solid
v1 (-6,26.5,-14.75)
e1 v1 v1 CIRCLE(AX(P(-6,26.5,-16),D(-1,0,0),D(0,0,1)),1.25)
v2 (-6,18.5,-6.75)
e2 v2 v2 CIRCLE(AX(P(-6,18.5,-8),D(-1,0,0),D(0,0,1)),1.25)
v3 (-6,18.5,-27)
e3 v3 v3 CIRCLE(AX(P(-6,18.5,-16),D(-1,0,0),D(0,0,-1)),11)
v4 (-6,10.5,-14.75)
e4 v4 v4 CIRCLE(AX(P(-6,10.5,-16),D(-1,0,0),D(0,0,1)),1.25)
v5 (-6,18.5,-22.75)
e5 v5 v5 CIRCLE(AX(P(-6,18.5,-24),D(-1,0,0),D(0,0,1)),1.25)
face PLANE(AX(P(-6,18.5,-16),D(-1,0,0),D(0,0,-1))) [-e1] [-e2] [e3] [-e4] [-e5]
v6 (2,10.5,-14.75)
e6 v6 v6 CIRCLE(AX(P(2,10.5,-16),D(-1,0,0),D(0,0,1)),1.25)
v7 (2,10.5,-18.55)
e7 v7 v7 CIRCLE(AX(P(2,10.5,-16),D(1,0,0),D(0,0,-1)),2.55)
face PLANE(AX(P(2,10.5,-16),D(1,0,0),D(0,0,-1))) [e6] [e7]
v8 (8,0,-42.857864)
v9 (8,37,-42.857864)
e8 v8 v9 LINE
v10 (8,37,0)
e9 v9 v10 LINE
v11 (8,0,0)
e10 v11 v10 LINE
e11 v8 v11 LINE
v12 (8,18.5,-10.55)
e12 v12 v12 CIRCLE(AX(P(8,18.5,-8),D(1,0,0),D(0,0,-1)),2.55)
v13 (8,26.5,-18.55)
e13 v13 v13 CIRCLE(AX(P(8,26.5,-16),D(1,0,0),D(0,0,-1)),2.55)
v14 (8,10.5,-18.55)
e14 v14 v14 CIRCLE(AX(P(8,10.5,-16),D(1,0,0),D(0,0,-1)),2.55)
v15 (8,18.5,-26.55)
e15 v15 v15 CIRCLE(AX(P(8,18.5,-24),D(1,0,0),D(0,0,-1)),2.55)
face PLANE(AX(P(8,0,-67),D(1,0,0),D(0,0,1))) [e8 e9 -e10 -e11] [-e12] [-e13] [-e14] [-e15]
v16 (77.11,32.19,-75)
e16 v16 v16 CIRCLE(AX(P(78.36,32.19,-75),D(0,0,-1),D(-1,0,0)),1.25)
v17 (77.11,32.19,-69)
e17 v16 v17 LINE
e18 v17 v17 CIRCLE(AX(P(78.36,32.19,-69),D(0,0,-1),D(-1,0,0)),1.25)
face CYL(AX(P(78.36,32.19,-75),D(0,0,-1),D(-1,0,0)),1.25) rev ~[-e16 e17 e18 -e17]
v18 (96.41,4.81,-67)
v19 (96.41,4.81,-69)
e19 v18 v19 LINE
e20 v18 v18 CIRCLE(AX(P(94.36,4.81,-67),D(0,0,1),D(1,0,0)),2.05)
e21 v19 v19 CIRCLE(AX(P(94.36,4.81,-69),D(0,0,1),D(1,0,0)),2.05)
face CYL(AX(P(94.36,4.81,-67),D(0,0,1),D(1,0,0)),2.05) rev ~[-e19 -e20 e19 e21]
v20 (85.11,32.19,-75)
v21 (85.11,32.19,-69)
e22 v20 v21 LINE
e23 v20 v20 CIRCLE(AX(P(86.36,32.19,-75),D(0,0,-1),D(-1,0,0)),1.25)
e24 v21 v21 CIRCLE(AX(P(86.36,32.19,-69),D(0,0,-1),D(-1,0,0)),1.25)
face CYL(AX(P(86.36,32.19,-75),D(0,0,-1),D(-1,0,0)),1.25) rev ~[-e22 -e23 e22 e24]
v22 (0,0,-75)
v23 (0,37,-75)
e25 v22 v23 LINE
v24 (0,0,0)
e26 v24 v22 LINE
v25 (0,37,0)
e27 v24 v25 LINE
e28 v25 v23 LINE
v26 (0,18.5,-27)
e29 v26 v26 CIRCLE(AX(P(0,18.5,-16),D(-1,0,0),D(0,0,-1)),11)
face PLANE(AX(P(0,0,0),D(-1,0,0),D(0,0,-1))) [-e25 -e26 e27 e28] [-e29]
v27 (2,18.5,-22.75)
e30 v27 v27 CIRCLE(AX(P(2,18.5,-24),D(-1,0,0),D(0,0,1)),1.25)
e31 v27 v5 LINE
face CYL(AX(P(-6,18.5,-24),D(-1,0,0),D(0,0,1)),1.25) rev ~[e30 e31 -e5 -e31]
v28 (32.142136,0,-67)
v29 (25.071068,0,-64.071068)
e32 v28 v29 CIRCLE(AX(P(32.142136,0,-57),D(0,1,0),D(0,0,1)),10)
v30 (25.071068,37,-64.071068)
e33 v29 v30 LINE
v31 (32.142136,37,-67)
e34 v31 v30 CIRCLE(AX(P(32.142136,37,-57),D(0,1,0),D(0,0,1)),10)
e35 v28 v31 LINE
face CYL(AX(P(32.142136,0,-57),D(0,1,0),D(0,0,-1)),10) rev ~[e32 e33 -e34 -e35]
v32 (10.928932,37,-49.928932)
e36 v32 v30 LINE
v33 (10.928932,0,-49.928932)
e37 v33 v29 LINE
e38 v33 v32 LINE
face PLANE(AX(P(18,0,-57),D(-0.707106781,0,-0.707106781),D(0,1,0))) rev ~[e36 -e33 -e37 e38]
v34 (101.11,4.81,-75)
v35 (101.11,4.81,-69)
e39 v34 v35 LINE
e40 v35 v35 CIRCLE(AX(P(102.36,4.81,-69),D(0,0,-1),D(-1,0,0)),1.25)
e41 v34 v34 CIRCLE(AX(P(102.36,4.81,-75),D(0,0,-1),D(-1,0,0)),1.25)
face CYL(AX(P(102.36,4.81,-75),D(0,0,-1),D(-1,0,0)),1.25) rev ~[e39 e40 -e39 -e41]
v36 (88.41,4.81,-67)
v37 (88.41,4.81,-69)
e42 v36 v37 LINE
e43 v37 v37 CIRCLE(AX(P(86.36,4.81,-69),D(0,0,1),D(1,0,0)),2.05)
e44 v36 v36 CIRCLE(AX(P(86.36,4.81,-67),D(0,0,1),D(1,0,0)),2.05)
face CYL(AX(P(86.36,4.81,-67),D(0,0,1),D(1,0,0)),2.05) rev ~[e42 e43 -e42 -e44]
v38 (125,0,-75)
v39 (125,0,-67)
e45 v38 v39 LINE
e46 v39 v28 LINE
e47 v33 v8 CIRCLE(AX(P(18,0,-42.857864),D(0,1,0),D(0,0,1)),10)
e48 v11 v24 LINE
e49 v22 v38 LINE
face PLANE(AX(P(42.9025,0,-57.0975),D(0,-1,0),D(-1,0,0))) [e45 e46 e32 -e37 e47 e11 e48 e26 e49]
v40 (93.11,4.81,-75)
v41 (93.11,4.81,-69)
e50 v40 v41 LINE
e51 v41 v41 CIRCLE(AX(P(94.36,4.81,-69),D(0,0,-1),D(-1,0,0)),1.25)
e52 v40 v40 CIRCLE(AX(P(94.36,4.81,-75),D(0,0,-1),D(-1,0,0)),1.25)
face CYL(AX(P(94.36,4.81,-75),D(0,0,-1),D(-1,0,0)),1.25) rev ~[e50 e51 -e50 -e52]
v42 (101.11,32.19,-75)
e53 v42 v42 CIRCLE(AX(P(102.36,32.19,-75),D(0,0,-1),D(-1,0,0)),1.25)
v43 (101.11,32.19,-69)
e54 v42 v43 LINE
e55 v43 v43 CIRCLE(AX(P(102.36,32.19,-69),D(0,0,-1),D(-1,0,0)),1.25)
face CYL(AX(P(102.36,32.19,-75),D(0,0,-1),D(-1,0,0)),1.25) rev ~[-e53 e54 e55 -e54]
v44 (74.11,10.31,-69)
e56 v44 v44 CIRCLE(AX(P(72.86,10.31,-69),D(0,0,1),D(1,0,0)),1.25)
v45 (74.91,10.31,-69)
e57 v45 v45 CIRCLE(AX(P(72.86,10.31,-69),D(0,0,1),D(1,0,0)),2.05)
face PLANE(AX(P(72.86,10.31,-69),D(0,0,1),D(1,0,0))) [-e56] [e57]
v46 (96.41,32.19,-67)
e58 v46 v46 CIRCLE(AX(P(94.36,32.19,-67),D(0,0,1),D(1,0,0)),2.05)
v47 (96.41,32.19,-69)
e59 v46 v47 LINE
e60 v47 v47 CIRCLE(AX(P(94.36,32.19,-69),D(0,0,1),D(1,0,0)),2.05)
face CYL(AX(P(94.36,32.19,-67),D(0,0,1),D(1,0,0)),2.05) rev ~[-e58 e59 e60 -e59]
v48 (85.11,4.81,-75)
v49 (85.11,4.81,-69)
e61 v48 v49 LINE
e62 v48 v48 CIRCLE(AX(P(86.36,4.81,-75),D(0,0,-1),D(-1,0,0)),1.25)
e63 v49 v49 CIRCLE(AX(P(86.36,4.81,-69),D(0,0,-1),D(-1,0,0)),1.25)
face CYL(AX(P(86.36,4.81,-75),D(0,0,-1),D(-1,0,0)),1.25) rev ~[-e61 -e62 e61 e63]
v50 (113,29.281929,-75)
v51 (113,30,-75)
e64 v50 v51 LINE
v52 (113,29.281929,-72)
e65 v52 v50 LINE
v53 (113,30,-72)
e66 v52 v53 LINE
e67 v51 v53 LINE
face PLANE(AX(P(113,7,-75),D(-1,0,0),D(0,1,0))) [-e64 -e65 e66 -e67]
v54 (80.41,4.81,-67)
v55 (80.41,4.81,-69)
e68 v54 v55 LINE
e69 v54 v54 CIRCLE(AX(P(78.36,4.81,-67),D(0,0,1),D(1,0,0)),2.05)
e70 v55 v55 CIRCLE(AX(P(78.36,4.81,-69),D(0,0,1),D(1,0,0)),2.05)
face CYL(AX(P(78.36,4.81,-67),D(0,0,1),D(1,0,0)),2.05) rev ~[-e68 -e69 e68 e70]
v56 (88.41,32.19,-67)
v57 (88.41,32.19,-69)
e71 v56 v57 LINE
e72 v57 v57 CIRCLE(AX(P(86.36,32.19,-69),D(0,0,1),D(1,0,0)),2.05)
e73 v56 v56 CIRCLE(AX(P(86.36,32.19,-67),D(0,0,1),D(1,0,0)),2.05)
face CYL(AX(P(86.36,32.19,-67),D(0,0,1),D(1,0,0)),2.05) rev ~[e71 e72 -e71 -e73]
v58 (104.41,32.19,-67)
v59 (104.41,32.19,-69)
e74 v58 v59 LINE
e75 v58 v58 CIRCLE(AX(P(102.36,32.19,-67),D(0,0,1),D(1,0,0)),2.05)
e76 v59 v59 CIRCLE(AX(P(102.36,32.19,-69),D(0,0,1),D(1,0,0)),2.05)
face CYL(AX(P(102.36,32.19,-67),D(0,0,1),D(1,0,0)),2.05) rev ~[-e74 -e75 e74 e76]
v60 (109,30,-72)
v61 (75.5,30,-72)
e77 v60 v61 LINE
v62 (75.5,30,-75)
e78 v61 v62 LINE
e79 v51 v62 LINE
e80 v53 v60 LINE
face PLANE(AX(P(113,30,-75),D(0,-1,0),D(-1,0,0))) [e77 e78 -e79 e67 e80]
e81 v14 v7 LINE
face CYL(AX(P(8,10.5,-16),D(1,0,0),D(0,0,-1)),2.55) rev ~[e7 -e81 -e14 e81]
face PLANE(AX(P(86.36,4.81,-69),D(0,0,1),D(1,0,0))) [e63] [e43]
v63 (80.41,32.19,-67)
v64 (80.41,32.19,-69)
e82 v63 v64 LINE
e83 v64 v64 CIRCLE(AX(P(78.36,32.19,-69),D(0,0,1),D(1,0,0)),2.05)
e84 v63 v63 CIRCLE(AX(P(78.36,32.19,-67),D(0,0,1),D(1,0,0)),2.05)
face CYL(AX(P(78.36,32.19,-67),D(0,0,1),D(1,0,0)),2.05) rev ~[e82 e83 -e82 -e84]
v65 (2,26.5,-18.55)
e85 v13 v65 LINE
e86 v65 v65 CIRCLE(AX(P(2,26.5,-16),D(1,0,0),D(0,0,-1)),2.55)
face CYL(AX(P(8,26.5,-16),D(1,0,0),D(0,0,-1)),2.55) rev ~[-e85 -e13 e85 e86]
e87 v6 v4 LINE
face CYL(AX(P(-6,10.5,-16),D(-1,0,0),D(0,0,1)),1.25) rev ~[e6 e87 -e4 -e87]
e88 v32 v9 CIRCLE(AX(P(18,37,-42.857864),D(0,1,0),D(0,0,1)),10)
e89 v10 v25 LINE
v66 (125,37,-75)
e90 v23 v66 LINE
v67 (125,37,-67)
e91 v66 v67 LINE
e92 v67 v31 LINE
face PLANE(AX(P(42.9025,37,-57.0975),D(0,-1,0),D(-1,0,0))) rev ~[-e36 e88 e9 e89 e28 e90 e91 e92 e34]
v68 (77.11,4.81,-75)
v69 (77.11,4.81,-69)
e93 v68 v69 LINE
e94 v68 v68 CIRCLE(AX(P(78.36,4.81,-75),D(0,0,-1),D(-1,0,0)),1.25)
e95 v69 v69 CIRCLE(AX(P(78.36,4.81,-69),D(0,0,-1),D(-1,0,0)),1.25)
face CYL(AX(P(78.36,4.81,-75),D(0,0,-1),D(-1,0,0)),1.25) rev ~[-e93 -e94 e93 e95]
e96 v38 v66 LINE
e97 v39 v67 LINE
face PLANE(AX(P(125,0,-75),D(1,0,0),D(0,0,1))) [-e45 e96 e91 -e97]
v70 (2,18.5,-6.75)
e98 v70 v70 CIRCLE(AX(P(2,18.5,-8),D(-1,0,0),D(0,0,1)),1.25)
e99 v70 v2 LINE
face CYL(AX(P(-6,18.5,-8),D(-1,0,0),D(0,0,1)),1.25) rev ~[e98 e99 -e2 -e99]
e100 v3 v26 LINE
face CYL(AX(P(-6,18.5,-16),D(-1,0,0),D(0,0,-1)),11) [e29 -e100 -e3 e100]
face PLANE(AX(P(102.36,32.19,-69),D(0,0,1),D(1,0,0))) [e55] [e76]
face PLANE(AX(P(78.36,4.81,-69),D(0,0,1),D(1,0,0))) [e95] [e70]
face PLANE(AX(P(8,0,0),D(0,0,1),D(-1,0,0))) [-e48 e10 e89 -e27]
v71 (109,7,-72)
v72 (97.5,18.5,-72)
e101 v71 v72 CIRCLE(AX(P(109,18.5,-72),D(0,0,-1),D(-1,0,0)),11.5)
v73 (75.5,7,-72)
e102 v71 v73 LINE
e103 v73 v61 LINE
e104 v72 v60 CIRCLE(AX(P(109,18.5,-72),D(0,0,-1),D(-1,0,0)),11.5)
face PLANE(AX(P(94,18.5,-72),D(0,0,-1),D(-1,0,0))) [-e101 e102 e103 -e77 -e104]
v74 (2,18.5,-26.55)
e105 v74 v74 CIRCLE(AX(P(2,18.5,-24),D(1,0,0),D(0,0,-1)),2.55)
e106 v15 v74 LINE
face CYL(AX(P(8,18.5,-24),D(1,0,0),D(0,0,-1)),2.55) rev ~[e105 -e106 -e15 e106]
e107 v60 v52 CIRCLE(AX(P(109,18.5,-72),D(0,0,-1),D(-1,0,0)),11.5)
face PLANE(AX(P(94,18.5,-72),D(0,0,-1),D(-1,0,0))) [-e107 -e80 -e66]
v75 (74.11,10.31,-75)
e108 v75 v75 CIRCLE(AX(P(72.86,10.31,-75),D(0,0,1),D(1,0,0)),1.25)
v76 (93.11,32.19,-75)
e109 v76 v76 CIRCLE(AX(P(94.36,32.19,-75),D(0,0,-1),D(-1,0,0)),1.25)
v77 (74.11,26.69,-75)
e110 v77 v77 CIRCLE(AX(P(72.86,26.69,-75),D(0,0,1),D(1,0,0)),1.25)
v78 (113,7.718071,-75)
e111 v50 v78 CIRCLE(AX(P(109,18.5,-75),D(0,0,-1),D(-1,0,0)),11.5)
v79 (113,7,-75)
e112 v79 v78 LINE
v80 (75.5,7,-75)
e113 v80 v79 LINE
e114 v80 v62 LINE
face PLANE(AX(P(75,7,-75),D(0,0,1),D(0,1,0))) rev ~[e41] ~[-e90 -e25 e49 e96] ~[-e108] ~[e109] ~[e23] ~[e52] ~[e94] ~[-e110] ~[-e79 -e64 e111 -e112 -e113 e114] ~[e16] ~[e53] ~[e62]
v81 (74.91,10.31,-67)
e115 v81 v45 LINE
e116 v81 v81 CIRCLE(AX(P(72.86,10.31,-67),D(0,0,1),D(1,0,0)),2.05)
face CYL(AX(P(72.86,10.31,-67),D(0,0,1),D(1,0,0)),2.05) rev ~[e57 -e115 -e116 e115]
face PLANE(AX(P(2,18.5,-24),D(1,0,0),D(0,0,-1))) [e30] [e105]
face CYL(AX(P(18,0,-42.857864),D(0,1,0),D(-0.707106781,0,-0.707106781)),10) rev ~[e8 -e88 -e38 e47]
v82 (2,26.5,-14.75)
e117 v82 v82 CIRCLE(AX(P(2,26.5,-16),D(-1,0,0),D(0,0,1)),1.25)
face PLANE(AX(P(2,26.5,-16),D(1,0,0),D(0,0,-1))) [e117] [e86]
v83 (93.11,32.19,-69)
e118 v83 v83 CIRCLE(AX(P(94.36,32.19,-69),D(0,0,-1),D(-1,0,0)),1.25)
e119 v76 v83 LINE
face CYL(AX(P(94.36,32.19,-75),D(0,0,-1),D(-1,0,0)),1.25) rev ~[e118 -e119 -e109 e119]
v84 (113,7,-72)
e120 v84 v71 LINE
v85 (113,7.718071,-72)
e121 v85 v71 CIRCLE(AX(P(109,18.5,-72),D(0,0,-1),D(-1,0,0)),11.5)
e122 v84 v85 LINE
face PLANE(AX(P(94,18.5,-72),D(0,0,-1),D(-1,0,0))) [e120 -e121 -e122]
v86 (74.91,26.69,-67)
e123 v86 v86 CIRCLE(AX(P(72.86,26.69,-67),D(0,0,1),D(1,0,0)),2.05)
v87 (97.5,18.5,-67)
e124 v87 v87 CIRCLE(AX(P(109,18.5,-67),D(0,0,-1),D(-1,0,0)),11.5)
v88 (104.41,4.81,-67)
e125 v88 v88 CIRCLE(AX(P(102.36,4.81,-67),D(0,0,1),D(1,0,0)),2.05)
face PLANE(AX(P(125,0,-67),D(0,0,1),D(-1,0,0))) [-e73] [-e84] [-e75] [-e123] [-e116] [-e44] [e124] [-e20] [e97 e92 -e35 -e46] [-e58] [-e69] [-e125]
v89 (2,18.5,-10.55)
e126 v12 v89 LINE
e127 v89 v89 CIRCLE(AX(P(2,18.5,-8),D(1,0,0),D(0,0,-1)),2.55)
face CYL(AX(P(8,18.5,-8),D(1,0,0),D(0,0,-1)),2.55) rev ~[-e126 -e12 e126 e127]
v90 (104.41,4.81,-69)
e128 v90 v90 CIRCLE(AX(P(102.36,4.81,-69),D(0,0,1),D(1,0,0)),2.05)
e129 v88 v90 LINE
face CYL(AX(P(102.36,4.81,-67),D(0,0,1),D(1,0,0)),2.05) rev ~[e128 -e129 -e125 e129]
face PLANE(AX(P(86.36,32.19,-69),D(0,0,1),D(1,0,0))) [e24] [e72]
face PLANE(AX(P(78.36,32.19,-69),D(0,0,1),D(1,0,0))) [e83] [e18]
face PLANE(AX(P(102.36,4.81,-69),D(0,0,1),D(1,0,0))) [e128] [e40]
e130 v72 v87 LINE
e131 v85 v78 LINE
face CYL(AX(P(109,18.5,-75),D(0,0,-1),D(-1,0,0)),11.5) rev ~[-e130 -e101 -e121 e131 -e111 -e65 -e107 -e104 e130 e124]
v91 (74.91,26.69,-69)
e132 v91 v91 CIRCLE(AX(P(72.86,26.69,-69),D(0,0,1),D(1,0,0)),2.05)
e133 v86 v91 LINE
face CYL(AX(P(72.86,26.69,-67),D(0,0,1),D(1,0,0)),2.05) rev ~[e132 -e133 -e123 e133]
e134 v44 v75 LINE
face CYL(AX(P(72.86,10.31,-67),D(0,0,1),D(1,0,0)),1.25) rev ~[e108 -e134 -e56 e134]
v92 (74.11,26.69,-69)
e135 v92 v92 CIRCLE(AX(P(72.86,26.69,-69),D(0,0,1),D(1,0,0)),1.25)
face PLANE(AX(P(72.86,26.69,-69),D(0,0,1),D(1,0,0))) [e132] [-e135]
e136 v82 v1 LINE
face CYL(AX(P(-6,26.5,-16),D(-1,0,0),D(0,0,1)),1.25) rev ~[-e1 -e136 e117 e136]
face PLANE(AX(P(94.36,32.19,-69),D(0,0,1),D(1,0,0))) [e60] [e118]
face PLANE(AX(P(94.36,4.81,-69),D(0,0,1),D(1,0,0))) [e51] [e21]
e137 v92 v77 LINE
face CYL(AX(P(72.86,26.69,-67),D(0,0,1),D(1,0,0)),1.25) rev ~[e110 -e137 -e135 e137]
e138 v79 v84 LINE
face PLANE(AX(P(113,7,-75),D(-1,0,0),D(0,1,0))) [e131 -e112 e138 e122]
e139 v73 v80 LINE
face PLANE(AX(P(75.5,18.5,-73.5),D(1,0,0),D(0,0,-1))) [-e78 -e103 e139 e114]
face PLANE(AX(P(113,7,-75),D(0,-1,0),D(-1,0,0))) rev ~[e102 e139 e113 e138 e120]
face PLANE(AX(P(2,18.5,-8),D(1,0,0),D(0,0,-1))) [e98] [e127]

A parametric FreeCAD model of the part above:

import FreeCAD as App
import Part
import Sketcher
Q = App.Units.Quantity


def edges_at(feature, points):
    """Names of the edges that pass closest to the given points."""
    edges = feature.Shape.Edges
    near = lambda p: min(range(len(edges)), key=lambda i: edges[i].distToShape(Part.Vertex(*p))[0])
    return sorted({f"Edge{near(p) + 1}" for p in points})

doc = App.newDocument("Part")
body = doc.addObject("PartDesign::Body", "Body")

# Sketch on XZ plane
sketch1 = body.newObject("Sketcher::SketchObject", "Sketch")
sketch1.AttachmentSupport = (doc.getObject("XZ_Plane"), [""])
sketch1.MapMode = "FlatFace"
sketch1.addGeometry(Part.LineSegment(App.Vector(0, -75, 0), App.Vector(0, 0, 0)), False)
sketch1.addGeometry(Part.LineSegment(App.Vector(0, 0, 0), App.Vector(8, 0, 0)), False)
sketch1.addGeometry(Part.LineSegment(App.Vector(8, 0, 0), App.Vector(8, -67, 0)), False)
sketch1.addGeometry(Part.LineSegment(App.Vector(8, -67, 0), App.Vector(125, -67, 0)), False)
sketch1.addGeometry(Part.LineSegment(App.Vector(125, -67, 0), App.Vector(125, -75, 0)), False)
sketch1.addGeometry(Part.LineSegment(App.Vector(125, -75, 0), App.Vector(0, -75, 0)), False)
sketch1.addConstraint(Sketcher.Constraint("Coincident", 0, 2, 1, 1))
sketch1.addConstraint(Sketcher.Constraint("Coincident", 1, 2, 2, 1))
sketch1.addConstraint(Sketcher.Constraint("Coincident", 2, 2, 3, 1))
sketch1.addConstraint(Sketcher.Constraint("Coincident", 3, 2, 4, 1))
sketch1.addConstraint(Sketcher.Constraint("Coincident", 4, 2, 5, 1))
sketch1.addConstraint(Sketcher.Constraint("Coincident", 5, 2, 0, 1))
sketch1.addConstraint(Sketcher.Constraint("Vertical", 0))
sketch1.addConstraint(Sketcher.Constraint("Horizontal", 1))
sketch1.addConstraint(Sketcher.Constraint("Vertical", 2))
sketch1.addConstraint(Sketcher.Constraint("Horizontal", 3))
sketch1.addConstraint(Sketcher.Constraint("Vertical", 4))
sketch1.addConstraint(Sketcher.Constraint("Horizontal", 5))
sketch1.addConstraint(Sketcher.Constraint("Coincident", 0, 2, -1, 1))
sketch1.addConstraint(Sketcher.Constraint("Equal", 1, 4))
sketch1.addConstraint(Sketcher.Constraint("DistanceX", 1, 1, 1, 2, Q("8 mm")))
sketch1.addConstraint(Sketcher.Constraint("DistanceX", 3, 1, 3, 2, Q("117 mm")))
sketch1.addConstraint(Sketcher.Constraint("DistanceY", 0, 1, 0, 2, Q("75 mm")))
pad1 = body.newObject("PartDesign::Pad", "Pad")
pad1.Profile = sketch1
pad1.Length = 37
pad1.Reversed = True

# Sketch on XY plane
sketch2 = body.newObject("Sketcher::SketchObject", "Sketch001")
sketch2.AttachmentSupport = (doc.getObject("XY_Plane"), [""])
sketch2.MapMode = "FlatFace"
sketch2.AttachmentOffset = App.Placement(App.Vector(0, 0, -75), App.Rotation())
sketch2.addGeometry(Part.Circle(App.Vector(109, 18.5, 0), App.Vector(0, 0, 1), 11.5), False)
sketch2.addConstraint(Sketcher.Constraint("Diameter", 0, Q("23 mm")))
sketch2.addConstraint(Sketcher.Constraint("DistanceX", -1, 1, 0, 3, Q("109 mm")))
sketch2.addConstraint(Sketcher.Constraint("DistanceY", -1, 1, 0, 3, Q("18.5 mm")))
pocket1 = body.newObject("PartDesign::Pocket", "Pocket")
pocket1.Profile = sketch2
pocket1.Type = "UpToFirst"
pocket1.Reversed = True

# Sketch on XY plane
sketch3 = body.newObject("Sketcher::SketchObject", "Sketch002")
sketch3.AttachmentSupport = (doc.getObject("XY_Plane"), [""])
sketch3.MapMode = "FlatFace"
sketch3.AttachmentOffset = App.Placement(App.Vector(0, 0, -75), App.Rotation())
sketch3.addGeometry(Part.Circle(App.Vector(102.36, 32.19, 0), App.Vector(0, 0, 1), 1.25), False)
sketch3.addConstraint(Sketcher.Constraint("Diameter", 0, Q("2.5 mm")))
sketch3.addConstraint(Sketcher.Constraint("DistanceX", -1, 1, 0, 3, Q("102.36 mm")))
sketch3.addConstraint(Sketcher.Constraint("DistanceY", -1, 1, 0, 3, Q("32.19 mm")))
pocket2 = body.newObject("PartDesign::Pocket", "Pocket001")
pocket2.Profile = sketch3
pocket2.Type = "UpToFirst"
pocket2.Reversed = True

# Sketch on XY plane
sketch4 = body.newObject("Sketcher::SketchObject", "Sketch003")
sketch4.AttachmentSupport = (doc.getObject("XY_Plane"), [""])
sketch4.MapMode = "FlatFace"
sketch4.AttachmentOffset = App.Placement(App.Vector(0, 0, -75), App.Rotation())
sketch4.addGeometry(Part.Circle(App.Vector(94.36, 32.19, 0), App.Vector(0, 0, 1), 1.25), False)
sketch4.addConstraint(Sketcher.Constraint("Diameter", 0, Q("2.5 mm")))
sketch4.addConstraint(Sketcher.Constraint("DistanceX", -1, 1, 0, 3, Q("94.36 mm")))
sketch4.addConstraint(Sketcher.Constraint("DistanceY", -1, 1, 0, 3, Q("32.19 mm")))
pocket3 = body.newObject("PartDesign::Pocket", "Pocket002")
pocket3.Profile = sketch4
pocket3.Type = "UpToFirst"
pocket3.Reversed = True

# Sketch on XY plane
sketch5 = body.newObject("Sketcher::SketchObject", "Sketch004")
sketch5.AttachmentSupport = (doc.getObject("XY_Plane"), [""])
sketch5.MapMode = "FlatFace"
sketch5.AttachmentOffset = App.Placement(App.Vector(0, 0, -75), App.Rotation())
sketch5.addGeometry(Part.Circle(App.Vector(86.36, 32.19, 0), App.Vector(0, 0, 1), 1.25), False)
sketch5.addConstraint(Sketcher.Constraint("Diameter", 0, Q("2.5 mm")))
sketch5.addConstraint(Sketcher.Constraint("DistanceX", -1, 1, 0, 3, Q("86.36 mm")))
sketch5.addConstraint(Sketcher.Constraint("DistanceY", -1, 1, 0, 3, Q("32.19 mm")))
pocket4 = body.newObject("PartDesign::Pocket", "Pocket003")
pocket4.Profile = sketch5
pocket4.Type = "UpToFirst"
pocket4.Reversed = True

# Sketch on XY plane
sketch6 = body.newObject("Sketcher::SketchObject", "Sketch005")
sketch6.AttachmentSupport = (doc.getObject("XY_Plane"), [""])
sketch6.MapMode = "FlatFace"
sketch6.AttachmentOffset = App.Placement(App.Vector(0, 0, -75), App.Rotation())
sketch6.addGeometry(Part.Circle(App.Vector(78.36, 32.19, 0), App.Vector(0, 0, 1), 1.25), False)
sketch6.addConstraint(Sketcher.Constraint("Diameter", 0, Q("2.5 mm")))
sketch6.addConstraint(Sketcher.Constraint("DistanceX", -1, 1, 0, 3, Q("78.36 mm")))
sketch6.addConstraint(Sketcher.Constraint("DistanceY", -1, 1, 0, 3, Q("32.19 mm")))
pocket5 = body.newObject("PartDesign::Pocket", "Pocket004")
pocket5.Profile = sketch6
pocket5.Type = "UpToFirst"
pocket5.Reversed = True

# Sketch on XY plane
sketch7 = body.newObject("Sketcher::SketchObject", "Sketch006")
sketch7.AttachmentSupport = (doc.getObject("XY_Plane"), [""])
sketch7.MapMode = "FlatFace"
sketch7.AttachmentOffset = App.Placement(App.Vector(0, 0, -75), App.Rotation())
sketch7.addGeometry(Part.Circle(App.Vector(78.36, 4.81, 0), App.Vector(0, 0, 1), 1.25), False)
sketch7.addConstraint(Sketcher.Constraint("Diameter", 0, Q("2.5 mm")))
sketch7.addConstraint(Sketcher.Constraint("DistanceX", -1, 1, 0, 3, Q("78.36 mm")))
sketch7.addConstraint(Sketcher.Constraint("DistanceY", -1, 1, 0, 3, Q("4.81 mm")))
pocket6 = body.newObject("PartDesign::Pocket", "Pocket005")
pocket6.Profile = sketch7
pocket6.Type = "UpToFirst"
pocket6.Reversed = True

# Sketch on XY plane
sketch8 = body.newObject("Sketcher::SketchObject", "Sketch007")
sketch8.AttachmentSupport = (doc.getObject("XY_Plane"), [""])
sketch8.MapMode = "FlatFace"
sketch8.AttachmentOffset = App.Placement(App.Vector(0, 0, -75), App.Rotation())
sketch8.addGeometry(Part.Circle(App.Vector(86.36, 4.81, 0), App.Vector(0, 0, 1), 1.25), False)
sketch8.addConstraint(Sketcher.Constraint("Diameter", 0, Q("2.5 mm")))
sketch8.addConstraint(Sketcher.Constraint("DistanceX", -1, 1, 0, 3, Q("86.36 mm")))
sketch8.addConstraint(Sketcher.Constraint("DistanceY", -1, 1, 0, 3, Q("4.81 mm")))
pocket7 = body.newObject("PartDesign::Pocket", "Pocket006")
pocket7.Profile = sketch8
pocket7.Type = "UpToFirst"
pocket7.Reversed = True

# Sketch on XY plane
sketch9 = body.newObject("Sketcher::SketchObject", "Sketch008")
sketch9.AttachmentSupport = (doc.getObject("XY_Plane"), [""])
sketch9.MapMode = "FlatFace"
sketch9.AttachmentOffset = App.Placement(App.Vector(0, 0, -75), App.Rotation())
sketch9.addGeometry(Part.Circle(App.Vector(94.36, 4.81, 0), App.Vector(0, 0, 1), 1.25), False)
sketch9.addConstraint(Sketcher.Constraint("Diameter", 0, Q("2.5 mm")))
sketch9.addConstraint(Sketcher.Constraint("DistanceX", -1, 1, 0, 3, Q("94.36 mm")))
sketch9.addConstraint(Sketcher.Constraint("DistanceY", -1, 1, 0, 3, Q("4.81 mm")))
pocket8 = body.newObject("PartDesign::Pocket", "Pocket007")
pocket8.Profile = sketch9
pocket8.Type = "UpToFirst"
pocket8.Reversed = True

# Sketch on XY plane
sketch10 = body.newObject("Sketcher::SketchObject", "Sketch009")
sketch10.AttachmentSupport = (doc.getObject("XY_Plane"), [""])
sketch10.MapMode = "FlatFace"
sketch10.AttachmentOffset = App.Placement(App.Vector(0, 0, -75), App.Rotation())
sketch10.addGeometry(Part.Circle(App.Vector(102.36, 4.81, 0), App.Vector(0, 0, 1), 1.25), False)
sketch10.addConstraint(Sketcher.Constraint("Diameter", 0, Q("2.5 mm")))
sketch10.addConstraint(Sketcher.Constraint("DistanceX", -1, 1, 0, 3, Q("102.36 mm")))
sketch10.addConstraint(Sketcher.Constraint("DistanceY", -1, 1, 0, 3, Q("4.81 mm")))
pocket9 = body.newObject("PartDesign::Pocket", "Pocket008")
pocket9.Profile = sketch10
pocket9.Type = "UpToFirst"
pocket9.Reversed = True

# Sketch on YZ plane
sketch11 = body.newObject("Sketcher::SketchObject", "Sketch010")
sketch11.AttachmentSupport = (doc.getObject("YZ_Plane"), [""])
sketch11.MapMode = "FlatFace"
sketch11.addGeometry(Part.Circle(App.Vector(10.5, -16, 0), App.Vector(0, 0, 1), 1.25), False)
sketch11.addConstraint(Sketcher.Constraint("Diameter", 0, Q("2.5 mm")))
sketch11.addConstraint(Sketcher.Constraint("DistanceY", 0, 3, -1, 1, Q("16 mm")))
sketch11.addConstraint(Sketcher.Constraint("DistanceX", -1, 1, 0, 3, Q("10.5 mm")))
pocket10 = body.newObject("PartDesign::Pocket", "Pocket009")
pocket10.Profile = sketch11
pocket10.Type = "UpToFirst"
pocket10.Reversed = True

# Sketch on YZ plane
sketch12 = body.newObject("Sketcher::SketchObject", "Sketch011")
sketch12.AttachmentSupport = (doc.getObject("YZ_Plane"), [""])
sketch12.MapMode = "FlatFace"
sketch12.addGeometry(Part.Circle(App.Vector(18.5, -24, 0), App.Vector(0, 0, 1), 1.25), False)
sketch12.addConstraint(Sketcher.Constraint("Diameter", 0, Q("2.5 mm")))
sketch12.addConstraint(Sketcher.Constraint("DistanceY", 0, 3, -1, 1, Q("24 mm")))
sketch12.addConstraint(Sketcher.Constraint("DistanceX", -1, 1, 0, 3, Q("18.5 mm")))
pocket11 = body.newObject("PartDesign::Pocket", "Pocket010")
pocket11.Profile = sketch12
pocket11.Type = "UpToFirst"
pocket11.Reversed = True

# Sketch on YZ plane
sketch13 = body.newObject("Sketcher::SketchObject", "Sketch012")
sketch13.AttachmentSupport = (doc.getObject("YZ_Plane"), [""])
sketch13.MapMode = "FlatFace"
sketch13.addGeometry(Part.Circle(App.Vector(26.5, -16, 0), App.Vector(0, 0, 1), 1.25), False)
sketch13.addConstraint(Sketcher.Constraint("Diameter", 0, Q("2.5 mm")))
sketch13.addConstraint(Sketcher.Constraint("DistanceY", 0, 3, -1, 1, Q("16 mm")))
sketch13.addConstraint(Sketcher.Constraint("DistanceX", -1, 1, 0, 3, Q("26.5 mm")))
pocket12 = body.newObject("PartDesign::Pocket", "Pocket011")
pocket12.Profile = sketch13
pocket12.Type = "UpToFirst"
pocket12.Reversed = True

# Sketch on YZ plane
sketch14 = body.newObject("Sketcher::SketchObject", "Sketch013")
sketch14.AttachmentSupport = (doc.getObject("YZ_Plane"), [""])
sketch14.MapMode = "FlatFace"
sketch14.addGeometry(Part.Circle(App.Vector(18.5, -8, 0), App.Vector(0, 0, 1), 1.25), False)
sketch14.addConstraint(Sketcher.Constraint("Diameter", 0, Q("2.5 mm")))
sketch14.addConstraint(Sketcher.Constraint("DistanceY", 0, 3, -1, 1, Q("8 mm")))
sketch14.addConstraint(Sketcher.Constraint("DistanceX", -1, 1, 0, 3, Q("18.5 mm")))
pocket13 = body.newObject("PartDesign::Pocket", "Pocket012")
pocket13.Profile = sketch14
pocket13.Type = "UpToFirst"
pocket13.Reversed = True

# Sketch on YZ plane
sketch15 = body.newObject("Sketcher::SketchObject", "Sketch014")
sketch15.AttachmentSupport = (doc.getObject("YZ_Plane"), [""])
sketch15.MapMode = "FlatFace"
sketch15.AttachmentOffset = App.Placement(App.Vector(0, 0, -6), App.Rotation())
sketch15.addGeometry(Part.Circle(App.Vector(18.5, -16, 0), App.Vector(0, 0, 1), 11), False)
sketch15.addGeometry(Part.Circle(App.Vector(18.5, -8, 0), App.Vector(0, 0, 1), 1.25), False)
sketch15.addGeometry(Part.Circle(App.Vector(26.5, -16, 0), App.Vector(0, 0, 1), 1.25), False)
sketch15.addGeometry(Part.Circle(App.Vector(10.5, -16, 0), App.Vector(0, 0, 1), 1.25), False)
sketch15.addGeometry(Part.Circle(App.Vector(18.5, -24, 0), App.Vector(0, 0, 1), 1.25), False)
sketch15.addConstraint(Sketcher.Constraint("Equal", 1, 2))
sketch15.addConstraint(Sketcher.Constraint("Equal", 2, 3))
sketch15.addConstraint(Sketcher.Constraint("Equal", 3, 4))
sketch15.addConstraint(Sketcher.Constraint("Horizontal", 0, 3, 2, 3))
sketch15.addConstraint(Sketcher.Constraint("Horizontal", 2, 3, 3, 3))
sketch15.addConstraint(Sketcher.Constraint("Vertical", 0, 3, 1, 3))
sketch15.addConstraint(Sketcher.Constraint("Vertical", 1, 3, 4, 3))
sketch15.addConstraint(Sketcher.Constraint("Diameter", 0, Q("22 mm")))
sketch15.addConstraint(Sketcher.Constraint("Diameter", 1, Q("2.5 mm")))
sketch15.addConstraint(Sketcher.Constraint("DistanceY", 0, 3, -1, 1, Q("16 mm")))
sketch15.addConstraint(Sketcher.Constraint("DistanceY", 1, 3, -1, 1, Q("8 mm")))
sketch15.addConstraint(Sketcher.Constraint("DistanceY", 4, 3, -1, 1, Q("24 mm")))
sketch15.addConstraint(Sketcher.Constraint("DistanceX", 0, 3, 2, 3, Q("8 mm")))
sketch15.addConstraint(Sketcher.Constraint("DistanceX", 3, 3, 0, 3, Q("8 mm")))
sketch15.addConstraint(Sketcher.Constraint("DistanceX", -1, 1, 0, 3, Q("18.5 mm")))
pad2 = body.newObject("PartDesign::Pad", "Pad001")
pad2.Profile = sketch15
pad2.Length = 6

# Sketch on XY plane
sketch16 = body.newObject("Sketcher::SketchObject", "Sketch015")
sketch16.AttachmentSupport = (doc.getObject("XY_Plane"), [""])
sketch16.MapMode = "FlatFace"
sketch16.AttachmentOffset = App.Placement(App.Vector(0, 0, -75), App.Rotation())
sketch16.addGeometry(Part.LineSegment(App.Vector(113, 30, 0), App.Vector(113, 7, 0)), False)
sketch16.addGeometry(Part.LineSegment(App.Vector(113, 7, 0), App.Vector(75, 7, 0)), False)
sketch16.addGeometry(Part.LineSegment(App.Vector(75, 7, 0), App.Vector(75, 30, 0)), False)
sketch16.addGeometry(Part.LineSegment(App.Vector(75, 30, 0), App.Vector(113, 30, 0)), False)
sketch16.addConstraint(Sketcher.Constraint("Coincident", 0, 2, 1, 1))
sketch16.addConstraint(Sketcher.Constraint("Coincident", 1, 2, 2, 1))
sketch16.addConstraint(Sketcher.Constraint("Coincident", 2, 2, 3, 1))
sketch16.addConstraint(Sketcher.Constraint("Coincident", 3, 2, 0, 1))
sketch16.addConstraint(Sketcher.Constraint("Vertical", 0))
sketch16.addConstraint(Sketcher.Constraint("Horizontal", 1))
sketch16.addConstraint(Sketcher.Constraint("Vertical", 2))
sketch16.addConstraint(Sketcher.Constraint("Horizontal", 3))
sketch16.addConstraint(Sketcher.Constraint("DistanceX", 1, 2, 1, 1, Q("38 mm")))
sketch16.addConstraint(Sketcher.Constraint("DistanceY", 0, 2, 0, 1, Q("23 mm")))
sketch16.addConstraint(Sketcher.Constraint("DistanceX", -1, 1, 0, 2, Q("113 mm")))
sketch16.addConstraint(Sketcher.Constraint("DistanceY", -1, 1, 0, 2, Q("7 mm")))
pocket14 = body.newObject("PartDesign::Pocket", "Pocket013")
pocket14.Profile = sketch16
pocket14.Length = 3
pocket14.Reversed = True

# Sketch on XY plane
sketch17 = body.newObject("Sketcher::SketchObject", "Sketch016")
sketch17.AttachmentSupport = (doc.getObject("XY_Plane"), [""])
sketch17.MapMode = "FlatFace"
sketch17.AttachmentOffset = App.Placement(App.Vector(0, 0, -67), App.Rotation())
sketch17.addGeometry(Part.Circle(App.Vector(78.36, 32.19, 0), App.Vector(0, 0, 1), 2.05), False)
sketch17.addGeometry(Part.Circle(App.Vector(86.36, 32.19, 0), App.Vector(0, 0, 1), 2.05), False)
sketch17.addGeometry(Part.Circle(App.Vector(94.36, 32.19, 0), App.Vector(0, 0, 1), 2.05), False)
sketch17.addGeometry(Part.Circle(App.Vector(102.36, 32.19, 0), App.Vector(0, 0, 1), 2.05), False)
sketch17.addGeometry(Part.Circle(App.Vector(78.36, 4.81, 0), App.Vector(0, 0, 1), 2.05), False)
sketch17.addGeometry(Part.Circle(App.Vector(86.36, 4.81, 0), App.Vector(0, 0, 1), 2.05), False)
sketch17.addGeometry(Part.Circle(App.Vector(94.36, 4.81, 0), App.Vector(0, 0, 1), 2.05), False)
sketch17.addGeometry(Part.Circle(App.Vector(102.36, 4.81, 0), App.Vector(0, 0, 1), 2.05), False)
sketch17.addConstraint(Sketcher.Constraint("Equal", 0, 1))
sketch17.addConstraint(Sketcher.Constraint("Equal", 1, 2))
sketch17.addConstraint(Sketcher.Constraint("Equal", 2, 3))
sketch17.addConstraint(Sketcher.Constraint("Equal", 3, 4))
sketch17.addConstraint(Sketcher.Constraint("Equal", 4, 5))
sketch17.addConstraint(Sketcher.Constraint("Equal", 5, 6))
sketch17.addConstraint(Sketcher.Constraint("Equal", 6, 7))
sketch17.addConstraint(Sketcher.Constraint("Horizontal", 0, 3, 1, 3))
sketch17.addConstraint(Sketcher.Constraint("Horizontal", 1, 3, 2, 3))
sketch17.addConstraint(Sketcher.Constraint("Horizontal", 2, 3, 3, 3))
sketch17.addConstraint(Sketcher.Constraint("Horizontal", 4, 3, 5, 3))
sketch17.addConstraint(Sketcher.Constraint("Horizontal", 5, 3, 6, 3))
sketch17.addConstraint(Sketcher.Constraint("Horizontal", 6, 3, 7, 3))
sketch17.addConstraint(Sketcher.Constraint("Vertical", 0, 3, 4, 3))
sketch17.addConstraint(Sketcher.Constraint("Vertical", 1, 3, 5, 3))
sketch17.addConstraint(Sketcher.Constraint("Vertical", 2, 3, 6, 3))
sketch17.addConstraint(Sketcher.Constraint("Vertical", 3, 3, 7, 3))
sketch17.addConstraint(Sketcher.Constraint("Diameter", 0, Q("4.1 mm")))
sketch17.addConstraint(Sketcher.Constraint("DistanceX", 0, 3, 1, 3, Q("8 mm")))
sketch17.addConstraint(Sketcher.Constraint("DistanceX", 1, 3, 2, 3, Q("8 mm")))
sketch17.addConstraint(Sketcher.Constraint("DistanceX", 2, 3, 3, 3, Q("8 mm")))
sketch17.addConstraint(Sketcher.Constraint("DistanceX", -1, 1, 0, 3, Q("78.36 mm")))
sketch17.addConstraint(Sketcher.Constraint("DistanceY", -1, 1, 0, 3, Q("32.19 mm")))
sketch17.addConstraint(Sketcher.Constraint("DistanceY", -1, 1, 4, 3, Q("4.81 mm")))
pocket15 = body.newObject("PartDesign::Pocket", "Pocket014")
pocket15.Profile = sketch17
pocket15.Length = 2

# Sketch on YZ plane
sketch18 = body.newObject("Sketcher::SketchObject", "Sketch017")
sketch18.AttachmentSupport = (doc.getObject("YZ_Plane"), [""])
sketch18.MapMode = "FlatFace"
sketch18.AttachmentOffset = App.Placement(App.Vector(0, 0, 8), App.Rotation())
sketch18.addGeometry(Part.Circle(App.Vector(18.5, -24, 0), App.Vector(0, 0, 1), 2.55), False)
sketch18.addGeometry(Part.Circle(App.Vector(10.5, -16, 0), App.Vector(0, 0, 1), 2.55), False)
sketch18.addGeometry(Part.Circle(App.Vector(18.5, -8, 0), App.Vector(0, 0, 1), 2.55), False)
sketch18.addGeometry(Part.Circle(App.Vector(26.5, -16, 0), App.Vector(0, 0, 1), 2.55), False)
sketch18.addConstraint(Sketcher.Constraint("Equal", 0, 1))
sketch18.addConstraint(Sketcher.Constraint("Equal", 1, 2))
sketch18.addConstraint(Sketcher.Constraint("Equal", 2, 3))
sketch18.addConstraint(Sketcher.Constraint("Horizontal", 1, 3, 3, 3))
sketch18.addConstraint(Sketcher.Constraint("Vertical", 0, 3, 2, 3))
sketch18.addConstraint(Sketcher.Constraint("Diameter", 0, Q("5.1 mm")))
sketch18.addConstraint(Sketcher.Constraint("DistanceY", 0, 3, -1, 1, Q("24 mm")))
sketch18.addConstraint(Sketcher.Constraint("DistanceY", 1, 3, -1, 1, Q("16 mm")))
sketch18.addConstraint(Sketcher.Constraint("DistanceY", 2, 3, -1, 1, Q("8 mm")))
sketch18.addConstraint(Sketcher.Constraint("DistanceX", 1, 3, 0, 3, Q("8 mm")))
sketch18.addConstraint(Sketcher.Constraint("DistanceX", 0, 3, 3, 3, Q("8 mm")))
sketch18.addConstraint(Sketcher.Constraint("DistanceX", -1, 1, 0, 3, Q("18.5 mm")))
pocket16 = body.newObject("PartDesign::Pocket", "Pocket015")
pocket16.Profile = sketch18
pocket16.Length = 6
doc.recompute()

chamfer = body.newObject("PartDesign::Chamfer", "Chamfer")
chamfer.Base = (pocket16, edges_at(pocket16, [(8, 18.5, -67)]))
chamfer.Size = 20
doc.recompute()

fillet = body.newObject("PartDesign::Fillet", "Fillet")
fillet.Base = (chamfer, edges_at(chamfer, [(28, 18.5, -67), (8, 18.5, -47)]))
fillet.Radius = 10

# Sketch on XY plane
sketch19 = body.newObject("Sketcher::SketchObject", "Sketch018")
sketch19.AttachmentSupport = (doc.getObject("XY_Plane"), [""])
sketch19.MapMode = "FlatFace"
sketch19.AttachmentOffset = App.Placement(App.Vector(0, 0, -67), App.Rotation())
sketch19.addGeometry(Part.Circle(App.Vector(72.86, 10.31, 0), App.Vector(0, 0, 1), 1.25), False)
sketch19.addConstraint(Sketcher.Constraint("Diameter", 0, Q("2.5 mm")))
sketch19.addConstraint(Sketcher.Constraint("DistanceX", -1, 1, 0, 3, Q("72.86 mm")))
sketch19.addConstraint(Sketcher.Constraint("DistanceY", -1, 1, 0, 3, Q("10.31 mm")))
pocket17 = body.newObject("PartDesign::Pocket", "Pocket016")
pocket17.Profile = sketch19
pocket17.Type = "UpToFirst"

# Sketch on XY plane
sketch20 = body.newObject("Sketcher::SketchObject", "Sketch019")
sketch20.AttachmentSupport = (doc.getObject("XY_Plane"), [""])
sketch20.MapMode = "FlatFace"
sketch20.AttachmentOffset = App.Placement(App.Vector(0, 0, -67), App.Rotation())
sketch20.addGeometry(Part.Circle(App.Vector(72.86, 26.69, 0), App.Vector(0, 0, 1), 1.25), False)
sketch20.addConstraint(Sketcher.Constraint("Diameter", 0, Q("2.5 mm")))
sketch20.addConstraint(Sketcher.Constraint("DistanceX", -1, 1, 0, 3, Q("72.86 mm")))
sketch20.addConstraint(Sketcher.Constraint("DistanceY", -1, 1, 0, 3, Q("26.69 mm")))
pocket18 = body.newObject("PartDesign::Pocket", "Pocket017")
pocket18.Profile = sketch20
pocket18.Type = "UpToFirst"

# Sketch on XY plane
sketch21 = body.newObject("Sketcher::SketchObject", "Sketch020")
sketch21.AttachmentSupport = (doc.getObject("XY_Plane"), [""])
sketch21.MapMode = "FlatFace"
sketch21.AttachmentOffset = App.Placement(App.Vector(0, 0, -67), App.Rotation())
sketch21.addGeometry(Part.Circle(App.Vector(72.86, 10.31, 0), App.Vector(0, 0, 1), 2.05), False)
sketch21.addGeometry(Part.Circle(App.Vector(72.86, 26.69, 0), App.Vector(0, 0, 1), 2.05), False)
sketch21.addConstraint(Sketcher.Constraint("Equal", 0, 1))
sketch21.addConstraint(Sketcher.Constraint("Vertical", 0, 3, 1, 3))
sketch21.addConstraint(Sketcher.Constraint("Diameter", 0, Q("4.1 mm")))
sketch21.addConstraint(Sketcher.Constraint("DistanceX", -1, 1, 0, 3, Q("72.86 mm")))
sketch21.addConstraint(Sketcher.Constraint("DistanceY", -1, 1, 0, 3, Q("10.31 mm")))
sketch21.addConstraint(Sketcher.Constraint("DistanceY", -1, 1, 1, 3, Q("26.69 mm")))
pocket19 = body.newObject("PartDesign::Pocket", "Pocket018")
pocket19.Profile = sketch21
pocket19.Length = 2

# Sketch on YZ plane
sketch22 = body.newObject("Sketcher::SketchObject", "Sketch021")
sketch22.AttachmentSupport = (doc.getObject("YZ_Plane"), [""])
sketch22.MapMode = "FlatFace"
sketch22.AttachmentOffset = App.Placement(App.Vector(0, 0, 75), App.Rotation())
sketch22.addGeometry(Part.LineSegment(App.Vector(30, -72, 0), App.Vector(7, -72, 0)), False)
sketch22.addGeometry(Part.LineSegment(App.Vector(7, -72, 0), App.Vector(7, -75, 0)), False)
sketch22.addGeometry(Part.LineSegment(App.Vector(7, -75, 0), App.Vector(30, -75, 0)), False)
sketch22.addGeometry(Part.LineSegment(App.Vector(30, -75, 0), App.Vector(30, -72, 0)), False)
sketch22.addConstraint(Sketcher.Constraint("Coincident", 0, 2, 1, 1))
sketch22.addConstraint(Sketcher.Constraint("Coincident", 1, 2, 2, 1))
sketch22.addConstraint(Sketcher.Constraint("Coincident", 2, 2, 3, 1))
sketch22.addConstraint(Sketcher.Constraint("Coincident", 3, 2, 0, 1))
sketch22.addConstraint(Sketcher.Constraint("Horizontal", 0))
sketch22.addConstraint(Sketcher.Constraint("Vertical", 1))
sketch22.addConstraint(Sketcher.Constraint("Horizontal", 2))
sketch22.addConstraint(Sketcher.Constraint("Vertical", 3))
sketch22.addConstraint(Sketcher.Constraint("DistanceX", 0, 2, 0, 1, Q("23 mm")))
sketch22.addConstraint(Sketcher.Constraint("DistanceY", 1, 2, 1, 1, Q("3 mm")))
sketch22.addConstraint(Sketcher.Constraint("DistanceX", -1, 1, 0, 2, Q("7 mm")))
sketch22.addConstraint(Sketcher.Constraint("DistanceY", 0, 2, -1, 1, Q("72 mm")))
pad3 = body.newObject("PartDesign::Pad", "Pad002")
pad3.Profile = sketch22
pad3.Length = 0.5

doc.recompute()
